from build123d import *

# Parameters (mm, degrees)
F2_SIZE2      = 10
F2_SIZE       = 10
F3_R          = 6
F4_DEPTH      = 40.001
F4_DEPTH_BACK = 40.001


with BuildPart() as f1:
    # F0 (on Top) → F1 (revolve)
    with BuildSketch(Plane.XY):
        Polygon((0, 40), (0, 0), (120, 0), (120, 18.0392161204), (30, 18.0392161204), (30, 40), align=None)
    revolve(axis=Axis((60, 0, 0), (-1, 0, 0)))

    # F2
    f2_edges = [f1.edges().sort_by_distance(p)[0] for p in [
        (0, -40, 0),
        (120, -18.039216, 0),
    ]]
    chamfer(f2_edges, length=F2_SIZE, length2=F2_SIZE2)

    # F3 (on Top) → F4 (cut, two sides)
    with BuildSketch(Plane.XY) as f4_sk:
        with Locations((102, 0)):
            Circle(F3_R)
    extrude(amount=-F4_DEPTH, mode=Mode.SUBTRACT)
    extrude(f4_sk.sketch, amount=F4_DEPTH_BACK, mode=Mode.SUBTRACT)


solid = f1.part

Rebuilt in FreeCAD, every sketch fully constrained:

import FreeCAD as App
import Part
import Sketcher
Q = App.Units.Quantity


def edges_at(feature, points):
    """Names of the edges that pass closest to the given points."""
    edges = feature.Shape.Edges
    near = lambda p: min(range(len(edges)), key=lambda i: edges[i].distToShape(Part.Vertex(*p))[0])
    return sorted({f"Edge{near(p) + 1}" for p in points})


def add_polygon(sketch, points):
    """Adds a closed chain of lines whose ends are joined by coincident constraints."""
    first, n = sketch.GeometryCount, len(points)
    for a, b in zip(points, points[1:] + points[:1]):
        sketch.addGeometry(Part.LineSegment(App.Vector(*a, 0), App.Vector(*b, 0)), False)
    for i in range(n):
        sketch.addConstraint(Sketcher.Constraint("Coincident", first + i, 2, first + (i + 1) % n, 1))

doc = App.newDocument("Part")
body = doc.addObject("PartDesign::Body", "Body")

# Sketch on XY plane
sketch1 = doc.addObject("Sketcher::SketchObject", "Sketch")
body.addObject(sketch1)
sketch1.AttachmentSupport = (doc.XY_Plane, [""])
sketch1.MapMode = "FlatFace"
add_polygon(sketch1, [(0, 40), (0, 0), (120, 0), (120, 18), (30, 18), (30, 40)])  # lines 0-5
sketch1.addConstraint([
    Sketcher.Constraint("Vertical", 0),
    Sketcher.Constraint("Horizontal", 1),
    Sketcher.Constraint("Vertical", 2),
    Sketcher.Constraint("Horizontal", 3),
    Sketcher.Constraint("Vertical", 4),
    Sketcher.Constraint("Horizontal", 5),
    Sketcher.Constraint("Coincident", 0, 2, -1, 1),
    Sketcher.Constraint("DistanceX", 1, 1, 1, 2, Q("120 mm")),
    Sketcher.Constraint("DistanceX", 3, 2, 3, 1, Q("90 mm")),
    Sketcher.Constraint("DistanceY", 0, 2, 0, 1, Q("40 mm")),
    Sketcher.Constraint("DistanceY", 2, 1, 2, 2, Q("18.039216 mm")),
])
revolution = doc.addObject("PartDesign::Revolution", "Revolution")
body.addObject(revolution)
revolution.Profile = sketch1
revolution.ReferenceAxis = (sketch1, ["H_Axis"])
revolution.Angle = 360
doc.recompute()

chamfer = doc.addObject("PartDesign::Chamfer", "Chamfer")
body.addObject(chamfer)
chamfer.Base = (revolution, edges_at(revolution, [(0, -40, 0), (120, -18.039, 0)]))
chamfer.ChamferType = "Two distances"
chamfer.Size = 10
chamfer.Size2 = 10

# Sketch on XY plane
sketch2 = doc.addObject("Sketcher::SketchObject", "Sketch001")
body.addObject(sketch2)
sketch2.AttachmentSupport = (doc.XY_Plane, [""])
sketch2.MapMode = "FlatFace"
sketch2.addGeometry(Part.Circle(App.Vector(102, 0, 0), App.Vector(0, 0, 1), 6), False)
sketch2.addConstraint([
    Sketcher.Constraint("PointOnObject", 0, 3, -1),
    Sketcher.Constraint("Diameter", 0, Q("12 mm")),
    Sketcher.Constraint("DistanceX", -1, 1, 0, 3, Q("102 mm")),
])
pocket1 = doc.addObject("PartDesign::Pocket", "Pocket")
body.addObject(pocket1)
pocket1.Profile = sketch2
pocket1.Type = "ThroughAll"
pocket1.Midplane = True

doc.recompute()
